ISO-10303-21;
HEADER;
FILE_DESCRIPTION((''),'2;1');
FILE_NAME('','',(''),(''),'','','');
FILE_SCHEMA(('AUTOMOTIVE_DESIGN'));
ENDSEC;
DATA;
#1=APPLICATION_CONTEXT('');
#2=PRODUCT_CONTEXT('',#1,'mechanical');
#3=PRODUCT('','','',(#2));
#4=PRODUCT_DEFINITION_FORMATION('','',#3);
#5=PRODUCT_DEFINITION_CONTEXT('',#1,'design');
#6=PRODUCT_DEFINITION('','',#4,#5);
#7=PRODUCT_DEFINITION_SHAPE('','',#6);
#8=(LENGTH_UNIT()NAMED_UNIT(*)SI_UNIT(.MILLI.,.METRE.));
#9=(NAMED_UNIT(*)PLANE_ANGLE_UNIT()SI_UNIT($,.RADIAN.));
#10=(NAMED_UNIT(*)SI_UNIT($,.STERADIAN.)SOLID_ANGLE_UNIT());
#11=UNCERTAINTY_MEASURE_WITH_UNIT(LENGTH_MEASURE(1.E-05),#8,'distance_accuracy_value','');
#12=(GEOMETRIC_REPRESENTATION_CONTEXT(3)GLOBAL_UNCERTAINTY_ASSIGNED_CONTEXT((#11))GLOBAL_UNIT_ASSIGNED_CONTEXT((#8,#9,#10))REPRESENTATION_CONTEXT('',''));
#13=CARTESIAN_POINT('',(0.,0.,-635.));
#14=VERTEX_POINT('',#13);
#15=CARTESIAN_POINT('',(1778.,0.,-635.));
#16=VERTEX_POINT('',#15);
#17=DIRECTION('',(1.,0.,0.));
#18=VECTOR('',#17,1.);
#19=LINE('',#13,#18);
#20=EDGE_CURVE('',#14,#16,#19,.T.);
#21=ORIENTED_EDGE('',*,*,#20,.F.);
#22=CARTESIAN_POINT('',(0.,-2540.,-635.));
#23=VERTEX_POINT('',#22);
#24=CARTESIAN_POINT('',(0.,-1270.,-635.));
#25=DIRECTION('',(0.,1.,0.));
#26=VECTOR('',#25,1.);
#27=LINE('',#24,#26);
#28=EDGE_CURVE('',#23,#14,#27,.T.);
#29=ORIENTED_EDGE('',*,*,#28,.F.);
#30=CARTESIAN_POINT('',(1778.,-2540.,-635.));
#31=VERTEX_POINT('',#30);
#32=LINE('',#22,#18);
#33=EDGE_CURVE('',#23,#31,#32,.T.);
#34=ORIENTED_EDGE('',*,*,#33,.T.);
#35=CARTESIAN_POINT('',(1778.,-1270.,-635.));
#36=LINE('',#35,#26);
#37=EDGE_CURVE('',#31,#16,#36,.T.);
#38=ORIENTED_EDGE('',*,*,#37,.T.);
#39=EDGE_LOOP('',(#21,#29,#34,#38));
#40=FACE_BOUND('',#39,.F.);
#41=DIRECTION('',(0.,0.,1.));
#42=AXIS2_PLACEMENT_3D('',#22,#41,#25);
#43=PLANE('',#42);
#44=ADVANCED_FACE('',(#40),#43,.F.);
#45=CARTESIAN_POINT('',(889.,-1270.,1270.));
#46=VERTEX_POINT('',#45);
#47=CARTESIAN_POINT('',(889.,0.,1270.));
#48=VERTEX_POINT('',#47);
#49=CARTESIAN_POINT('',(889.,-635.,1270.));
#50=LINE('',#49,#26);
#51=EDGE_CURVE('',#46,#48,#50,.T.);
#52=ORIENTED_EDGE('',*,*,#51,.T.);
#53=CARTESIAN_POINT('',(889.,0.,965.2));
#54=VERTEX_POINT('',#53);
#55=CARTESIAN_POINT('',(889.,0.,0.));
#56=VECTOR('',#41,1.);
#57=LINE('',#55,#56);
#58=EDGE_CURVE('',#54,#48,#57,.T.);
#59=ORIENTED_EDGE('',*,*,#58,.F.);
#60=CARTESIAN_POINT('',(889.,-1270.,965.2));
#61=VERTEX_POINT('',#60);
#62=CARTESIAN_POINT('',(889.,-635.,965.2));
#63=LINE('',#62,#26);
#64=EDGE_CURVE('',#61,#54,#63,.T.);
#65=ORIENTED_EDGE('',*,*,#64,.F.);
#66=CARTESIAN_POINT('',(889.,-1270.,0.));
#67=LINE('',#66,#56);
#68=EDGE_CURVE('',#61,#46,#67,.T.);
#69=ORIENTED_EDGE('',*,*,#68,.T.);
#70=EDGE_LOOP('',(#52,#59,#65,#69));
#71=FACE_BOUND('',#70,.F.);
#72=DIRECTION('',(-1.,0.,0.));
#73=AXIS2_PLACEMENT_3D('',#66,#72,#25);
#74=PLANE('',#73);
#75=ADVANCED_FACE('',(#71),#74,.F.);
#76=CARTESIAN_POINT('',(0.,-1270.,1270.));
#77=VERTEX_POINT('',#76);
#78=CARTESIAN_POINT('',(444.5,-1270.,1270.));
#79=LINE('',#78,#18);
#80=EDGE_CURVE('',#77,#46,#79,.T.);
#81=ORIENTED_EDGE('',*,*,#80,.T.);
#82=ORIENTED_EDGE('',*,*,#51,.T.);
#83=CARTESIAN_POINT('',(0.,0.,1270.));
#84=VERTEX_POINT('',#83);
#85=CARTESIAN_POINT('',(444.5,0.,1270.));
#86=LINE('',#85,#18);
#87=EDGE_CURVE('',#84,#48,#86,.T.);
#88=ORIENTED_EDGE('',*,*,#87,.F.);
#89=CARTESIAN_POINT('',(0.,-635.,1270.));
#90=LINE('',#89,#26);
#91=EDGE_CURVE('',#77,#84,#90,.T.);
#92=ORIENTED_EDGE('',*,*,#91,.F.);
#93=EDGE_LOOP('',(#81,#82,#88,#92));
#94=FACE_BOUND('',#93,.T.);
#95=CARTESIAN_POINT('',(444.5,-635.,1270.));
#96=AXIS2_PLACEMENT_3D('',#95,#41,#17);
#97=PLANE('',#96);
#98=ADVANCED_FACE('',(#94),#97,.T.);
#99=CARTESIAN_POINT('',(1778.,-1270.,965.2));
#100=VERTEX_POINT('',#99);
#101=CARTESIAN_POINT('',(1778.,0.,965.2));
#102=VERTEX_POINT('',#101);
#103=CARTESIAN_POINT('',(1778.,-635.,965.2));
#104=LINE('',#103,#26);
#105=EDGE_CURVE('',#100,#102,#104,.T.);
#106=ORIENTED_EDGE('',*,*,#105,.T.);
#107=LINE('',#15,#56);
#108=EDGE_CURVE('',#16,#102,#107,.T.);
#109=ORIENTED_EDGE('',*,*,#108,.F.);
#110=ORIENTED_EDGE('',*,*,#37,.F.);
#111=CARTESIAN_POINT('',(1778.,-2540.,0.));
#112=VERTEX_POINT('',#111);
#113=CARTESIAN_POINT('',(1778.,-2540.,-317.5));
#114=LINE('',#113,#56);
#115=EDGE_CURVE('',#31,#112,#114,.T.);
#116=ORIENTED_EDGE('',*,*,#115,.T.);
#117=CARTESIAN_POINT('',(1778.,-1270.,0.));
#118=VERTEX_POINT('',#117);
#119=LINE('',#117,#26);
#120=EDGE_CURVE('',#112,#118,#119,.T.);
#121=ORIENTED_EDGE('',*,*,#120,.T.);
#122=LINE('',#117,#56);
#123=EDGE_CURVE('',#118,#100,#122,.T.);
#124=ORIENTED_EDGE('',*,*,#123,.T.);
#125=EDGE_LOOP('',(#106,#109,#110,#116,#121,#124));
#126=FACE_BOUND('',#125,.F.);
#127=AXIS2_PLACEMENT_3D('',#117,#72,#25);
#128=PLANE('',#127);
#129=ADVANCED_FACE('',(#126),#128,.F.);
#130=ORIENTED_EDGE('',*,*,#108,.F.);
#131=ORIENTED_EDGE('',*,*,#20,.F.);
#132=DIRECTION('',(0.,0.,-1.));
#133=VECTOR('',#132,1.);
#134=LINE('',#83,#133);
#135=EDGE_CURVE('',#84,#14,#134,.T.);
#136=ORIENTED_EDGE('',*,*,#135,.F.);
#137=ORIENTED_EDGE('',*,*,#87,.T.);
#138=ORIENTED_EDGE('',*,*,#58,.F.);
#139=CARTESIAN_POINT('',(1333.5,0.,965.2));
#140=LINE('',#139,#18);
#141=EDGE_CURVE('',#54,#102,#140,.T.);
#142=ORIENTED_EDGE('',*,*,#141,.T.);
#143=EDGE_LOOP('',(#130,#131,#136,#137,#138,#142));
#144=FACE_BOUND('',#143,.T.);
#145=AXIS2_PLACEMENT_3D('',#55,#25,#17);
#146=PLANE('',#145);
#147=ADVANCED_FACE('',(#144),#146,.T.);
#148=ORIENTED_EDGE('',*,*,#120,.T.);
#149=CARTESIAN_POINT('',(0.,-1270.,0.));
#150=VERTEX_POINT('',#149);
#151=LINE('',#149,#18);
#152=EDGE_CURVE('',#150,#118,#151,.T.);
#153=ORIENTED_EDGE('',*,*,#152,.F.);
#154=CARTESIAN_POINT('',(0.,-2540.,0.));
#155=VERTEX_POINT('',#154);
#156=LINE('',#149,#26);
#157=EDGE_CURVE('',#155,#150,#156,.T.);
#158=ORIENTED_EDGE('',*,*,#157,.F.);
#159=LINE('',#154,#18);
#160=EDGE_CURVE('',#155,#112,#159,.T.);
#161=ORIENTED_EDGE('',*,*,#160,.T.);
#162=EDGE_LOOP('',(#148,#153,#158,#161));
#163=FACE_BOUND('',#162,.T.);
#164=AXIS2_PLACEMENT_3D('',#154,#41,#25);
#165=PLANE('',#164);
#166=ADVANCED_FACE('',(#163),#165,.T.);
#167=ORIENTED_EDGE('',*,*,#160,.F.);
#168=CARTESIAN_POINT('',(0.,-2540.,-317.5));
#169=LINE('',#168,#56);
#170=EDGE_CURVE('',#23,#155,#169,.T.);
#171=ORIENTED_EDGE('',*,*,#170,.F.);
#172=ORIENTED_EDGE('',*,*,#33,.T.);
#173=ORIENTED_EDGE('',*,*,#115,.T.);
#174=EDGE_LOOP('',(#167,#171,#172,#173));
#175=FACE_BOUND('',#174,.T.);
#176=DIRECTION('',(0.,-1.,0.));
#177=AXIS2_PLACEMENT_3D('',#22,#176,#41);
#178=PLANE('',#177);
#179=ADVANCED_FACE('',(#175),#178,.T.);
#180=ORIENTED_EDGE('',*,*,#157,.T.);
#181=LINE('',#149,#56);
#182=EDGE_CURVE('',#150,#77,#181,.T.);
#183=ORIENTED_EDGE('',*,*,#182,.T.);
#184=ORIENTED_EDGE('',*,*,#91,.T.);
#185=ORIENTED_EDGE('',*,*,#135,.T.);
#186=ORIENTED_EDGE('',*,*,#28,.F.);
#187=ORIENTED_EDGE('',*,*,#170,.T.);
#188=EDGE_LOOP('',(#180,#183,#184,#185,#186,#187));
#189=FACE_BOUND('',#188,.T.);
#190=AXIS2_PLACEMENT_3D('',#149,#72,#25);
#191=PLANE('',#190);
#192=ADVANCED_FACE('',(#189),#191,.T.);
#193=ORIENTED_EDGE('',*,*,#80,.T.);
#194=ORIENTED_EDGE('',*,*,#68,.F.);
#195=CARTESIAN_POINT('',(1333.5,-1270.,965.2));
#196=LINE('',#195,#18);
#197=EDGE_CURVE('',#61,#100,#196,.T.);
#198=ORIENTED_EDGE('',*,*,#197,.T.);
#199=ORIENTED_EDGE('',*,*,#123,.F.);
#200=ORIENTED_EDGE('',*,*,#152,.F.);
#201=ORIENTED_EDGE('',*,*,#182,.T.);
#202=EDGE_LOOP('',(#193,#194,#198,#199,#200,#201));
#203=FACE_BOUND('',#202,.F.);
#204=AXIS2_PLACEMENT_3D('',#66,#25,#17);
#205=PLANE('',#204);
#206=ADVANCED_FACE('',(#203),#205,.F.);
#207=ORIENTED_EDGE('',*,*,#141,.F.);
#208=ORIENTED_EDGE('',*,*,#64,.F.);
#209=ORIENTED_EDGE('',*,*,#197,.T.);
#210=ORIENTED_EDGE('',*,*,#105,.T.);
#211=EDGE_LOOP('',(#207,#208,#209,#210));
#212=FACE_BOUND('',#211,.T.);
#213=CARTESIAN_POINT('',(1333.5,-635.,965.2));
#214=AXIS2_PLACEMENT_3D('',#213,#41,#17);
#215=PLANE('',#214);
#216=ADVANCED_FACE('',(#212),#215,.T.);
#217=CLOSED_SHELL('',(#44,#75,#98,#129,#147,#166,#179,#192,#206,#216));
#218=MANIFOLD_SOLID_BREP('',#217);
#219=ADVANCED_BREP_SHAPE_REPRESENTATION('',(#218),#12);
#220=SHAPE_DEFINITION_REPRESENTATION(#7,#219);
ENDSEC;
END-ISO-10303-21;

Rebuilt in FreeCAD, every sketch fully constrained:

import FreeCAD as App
import Part
import Sketcher

V = App.Vector
Q = App.Units.Quantity


def add_polygon(sketch, points):
    """Adds a closed chain of lines whose ends are joined by coincident constraints."""
    first, n = sketch.GeometryCount, len(points)
    for a, b in zip(points, points[1:] + points[:1]):
        sketch.addGeometry(Part.LineSegment(App.Vector(*a, 0), App.Vector(*b, 0)), False)
    for i in range(n):
        sketch.addConstraint(Sketcher.Constraint("Coincident", first + i, 2, first + (i + 1) % n, 1))

doc = App.newDocument("Part")
body = doc.addObject("PartDesign::Body", "Body")

sketch1 = doc.addObject("Sketcher::SketchObject", "Sketch")
body.addObject(sketch1)
sketch1.AttachmentSupport = (doc.YZ_Plane, [""])
sketch1.MapMode = "FlatFace"
add_polygon(sketch1, [(-2540, 0), (-2540, -635), (0, -635), (0, 0)])
sketch1.addConstraint(Sketcher.Constraint("Vertical", 0))
sketch1.addConstraint(Sketcher.Constraint("Horizontal", 1))
sketch1.addConstraint(Sketcher.Constraint("Vertical", 2))
sketch1.addConstraint(Sketcher.Constraint("Horizontal", 3))
sketch1.addConstraint(Sketcher.Constraint("Coincident", 2, 2, -1, 1))
sketch1.addConstraint(Sketcher.Constraint("DistanceX", 1, 1, 1, 2, Q("100 in")))
sketch1.addConstraint(Sketcher.Constraint("DistanceY", 0, 2, 0, 1, Q("25 in")))
pad1 = doc.addObject("PartDesign::Pad", "Pad")
body.addObject(pad1)
pad1.Profile = sketch1
pad1.Length = Q("70 in")

sketch2 = doc.addObject("Sketcher::SketchObject", "Sketch001")
body.addObject(sketch2)
sketch2.AttachmentSupport = (doc.XY_Plane, [""])
sketch2.MapMode = "FlatFace"
add_polygon(sketch2, [(0, 0), (0, -1270), (889, -1270), (889, 0)])
sketch2.addConstraint(Sketcher.Constraint("Vertical", 0))
sketch2.addConstraint(Sketcher.Constraint("Horizontal", 1))
sketch2.addConstraint(Sketcher.Constraint("Vertical", 2))
sketch2.addConstraint(Sketcher.Constraint("Horizontal", 3))
sketch2.addConstraint(Sketcher.Constraint("Coincident", 3, 2, -1, 1))
sketch2.addConstraint(Sketcher.Constraint("DistanceX", 1, 1, 1, 2, Q("35 in")))
sketch2.addConstraint(Sketcher.Constraint("DistanceY", 0, 2, 0, 1, Q("50 in")))
pad2 = doc.addObject("PartDesign::Pad", "Pad001")
body.addObject(pad2)
pad2.Profile = sketch2
pad2.Length = Q("50 in")

sketch3 = doc.addObject("Sketcher::SketchObject", "Sketch002")
body.addObject(sketch3)
sketch3.AttachmentSupport = (doc.XY_Plane, [""])
sketch3.MapMode = "FlatFace"
add_polygon(sketch3, [(889, 0), (889, -1270), (1778, -1270), (1778, 0)])
sketch3.addConstraint(Sketcher.Constraint("Vertical", 0))
sketch3.addConstraint(Sketcher.Constraint("Horizontal", 1))
sketch3.addConstraint(Sketcher.Constraint("Vertical", 2))
sketch3.addConstraint(Sketcher.Constraint("Horizontal", 3))
sketch3.addConstraint(Sketcher.Constraint("PointOnObject", 2, 2, -1))
sketch3.addConstraint(Sketcher.Constraint("DistanceX", 1, 1, 1, 2, Q("35 in")))
sketch3.addConstraint(Sketcher.Constraint("DistanceY", 0, 2, 0, 1, Q("50 in")))
sketch3.addConstraint(Sketcher.Constraint("DistanceX", -1, 1, 0, 2, Q("35 in")))
pad3 = doc.addObject("PartDesign::Pad", "Pad002")
body.addObject(pad3)
pad3.Profile = sketch3
pad3.Length = Q("38 in")

doc.recompute()
